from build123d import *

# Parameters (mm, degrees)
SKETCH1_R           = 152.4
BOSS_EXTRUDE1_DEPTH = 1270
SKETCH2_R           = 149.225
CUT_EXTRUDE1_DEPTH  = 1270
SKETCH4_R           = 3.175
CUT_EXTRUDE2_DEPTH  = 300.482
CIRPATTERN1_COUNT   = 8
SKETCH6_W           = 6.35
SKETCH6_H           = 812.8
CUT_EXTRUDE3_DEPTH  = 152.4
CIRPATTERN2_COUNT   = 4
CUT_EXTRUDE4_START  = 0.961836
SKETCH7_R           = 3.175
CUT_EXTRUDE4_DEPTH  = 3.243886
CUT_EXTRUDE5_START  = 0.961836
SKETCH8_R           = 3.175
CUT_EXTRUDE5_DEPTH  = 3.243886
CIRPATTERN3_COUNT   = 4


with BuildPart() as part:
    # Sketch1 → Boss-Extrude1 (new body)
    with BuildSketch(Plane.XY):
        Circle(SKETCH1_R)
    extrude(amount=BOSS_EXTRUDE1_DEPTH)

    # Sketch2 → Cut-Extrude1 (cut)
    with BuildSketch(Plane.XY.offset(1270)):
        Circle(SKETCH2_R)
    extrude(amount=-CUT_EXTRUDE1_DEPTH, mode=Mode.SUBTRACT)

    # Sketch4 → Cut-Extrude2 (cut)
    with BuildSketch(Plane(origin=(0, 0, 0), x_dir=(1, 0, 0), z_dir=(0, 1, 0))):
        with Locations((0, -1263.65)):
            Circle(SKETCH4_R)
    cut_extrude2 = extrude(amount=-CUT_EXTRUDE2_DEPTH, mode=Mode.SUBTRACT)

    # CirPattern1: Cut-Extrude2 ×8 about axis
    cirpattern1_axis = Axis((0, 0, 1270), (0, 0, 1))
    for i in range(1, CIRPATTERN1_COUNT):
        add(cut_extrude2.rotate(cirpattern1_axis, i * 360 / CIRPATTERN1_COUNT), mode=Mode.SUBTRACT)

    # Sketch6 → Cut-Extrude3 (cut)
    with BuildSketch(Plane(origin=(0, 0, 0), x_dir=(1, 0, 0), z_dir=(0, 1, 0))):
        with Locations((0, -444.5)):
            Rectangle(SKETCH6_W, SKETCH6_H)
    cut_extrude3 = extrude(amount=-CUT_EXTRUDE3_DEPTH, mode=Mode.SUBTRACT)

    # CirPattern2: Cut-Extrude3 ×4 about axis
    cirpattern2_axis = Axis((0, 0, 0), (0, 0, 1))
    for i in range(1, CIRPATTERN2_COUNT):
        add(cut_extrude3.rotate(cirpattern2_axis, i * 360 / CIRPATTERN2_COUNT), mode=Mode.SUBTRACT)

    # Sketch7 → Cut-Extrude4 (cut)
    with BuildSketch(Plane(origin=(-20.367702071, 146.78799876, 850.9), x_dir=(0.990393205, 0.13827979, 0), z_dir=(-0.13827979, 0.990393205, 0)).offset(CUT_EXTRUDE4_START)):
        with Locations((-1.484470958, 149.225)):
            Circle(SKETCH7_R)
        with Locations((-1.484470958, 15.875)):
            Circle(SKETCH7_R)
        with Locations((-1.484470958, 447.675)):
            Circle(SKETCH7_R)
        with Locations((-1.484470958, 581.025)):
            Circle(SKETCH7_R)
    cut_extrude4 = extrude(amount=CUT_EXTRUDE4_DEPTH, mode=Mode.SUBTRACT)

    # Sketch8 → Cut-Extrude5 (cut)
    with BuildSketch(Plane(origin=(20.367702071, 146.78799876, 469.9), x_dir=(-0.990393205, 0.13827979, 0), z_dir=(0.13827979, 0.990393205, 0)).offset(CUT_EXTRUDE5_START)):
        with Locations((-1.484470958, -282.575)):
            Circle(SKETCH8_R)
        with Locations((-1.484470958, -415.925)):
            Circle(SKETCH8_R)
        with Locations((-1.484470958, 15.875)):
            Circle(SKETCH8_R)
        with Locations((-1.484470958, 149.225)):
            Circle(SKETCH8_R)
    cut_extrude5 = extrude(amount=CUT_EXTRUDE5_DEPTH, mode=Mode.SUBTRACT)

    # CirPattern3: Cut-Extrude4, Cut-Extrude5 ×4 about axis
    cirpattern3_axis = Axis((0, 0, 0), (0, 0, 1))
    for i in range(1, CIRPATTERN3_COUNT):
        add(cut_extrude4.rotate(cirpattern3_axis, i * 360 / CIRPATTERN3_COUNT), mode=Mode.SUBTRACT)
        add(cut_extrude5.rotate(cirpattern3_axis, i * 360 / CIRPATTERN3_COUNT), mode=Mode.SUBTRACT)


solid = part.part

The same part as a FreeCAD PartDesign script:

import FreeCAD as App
import Part
import Sketcher
Q = App.Units.Quantity

doc = App.newDocument("Part")
body = doc.addObject("PartDesign::Body", "Body")

sketch1 = body.newObject("Sketcher::SketchObject", "Sketch")
sketch1.AttachmentSupport = (doc.getObject("XY_Plane"), [""])
sketch1.MapMode = "FlatFace"
sketch1.addGeometry(Part.Circle(App.Vector(0, 0, 0), App.Vector(0, 0, 1), 152), False)
sketch1.addConstraint(Sketcher.Constraint("Coincident", 0, 3, -1, 1))
sketch1.addConstraint(Sketcher.Constraint("Diameter", 0, Q("12 in")))
pad1 = body.newObject("PartDesign::Pad", "Pad")
pad1.Profile = sketch1
pad1.Length = Q("50 in")

sketch2 = body.newObject("Sketcher::SketchObject", "Sketch001")
sketch2.AttachmentSupport = (doc.getObject("XY_Plane"), [""])
sketch2.MapMode = "FlatFace"
sketch2.AttachmentOffset = App.Placement(App.Vector(0, 0, 50 * 25.4), App.Rotation())
sketch2.addGeometry(Part.Circle(App.Vector(0, 0, 0), App.Vector(0, 0, 1), 149), False)
sketch2.addConstraint(Sketcher.Constraint("Coincident", 0, 3, -1, 1))
sketch2.addConstraint(Sketcher.Constraint("Diameter", 0, Q("11.75 in")))
pocket1 = body.newObject("PartDesign::Pocket", "Pocket")
pocket1.Profile = sketch2
pocket1.Length = Q("50 in")

sketch3 = body.newObject("Sketcher::SketchObject", "Sketch002")
sketch3.AttachmentSupport = (doc.getObject("XZ_Plane"), [""])
sketch3.MapMode = "FlatFace"
sketch3.addGeometry(Part.Circle(App.Vector(0, 1263.7, 0), App.Vector(0, 0, 1), 3.2), False)
sketch3.addConstraint(Sketcher.Constraint("PointOnObject", 0, 3, -2))
sketch3.addConstraint(Sketcher.Constraint("Diameter", 0, Q("0.25 in")))
sketch3.addConstraint(Sketcher.Constraint("DistanceY", -1, 1, 0, 3, Q("49.75 in")))
pocket2 = body.newObject("PartDesign::Pocket", "Pocket001")
pocket2.Profile = sketch3
pocket2.Length = Q("11.83 in")
pocket2.Reversed = True
doc.recompute()

polarpattern = body.newObject("PartDesign::PolarPattern", "PolarPattern")
polarpattern.Originals = [pocket2]
polarpattern.Axis = (doc.getObject("Z_Axis"), [""])
polarpattern.Angle = 360
polarpattern.Occurrences = 8
body.Tip = polarpattern

sketch4 = body.newObject("Sketcher::SketchObject", "Sketch003")
sketch4.AttachmentSupport = (doc.getObject("XZ_Plane"), [""])
sketch4.MapMode = "FlatFace"
sketch4.addGeometry(Part.LineSegment(App.Vector(-3, 38, 0), App.Vector(-3, 851, 0)), False)
sketch4.addGeometry(Part.LineSegment(App.Vector(-3, 851, 0), App.Vector(3, 851, 0)), False)
sketch4.addGeometry(Part.LineSegment(App.Vector(3, 851, 0), App.Vector(3, 38, 0)), False)
sketch4.addGeometry(Part.LineSegment(App.Vector(3, 38, 0), App.Vector(-3, 38, 0)), False)
sketch4.addConstraint(Sketcher.Constraint("Coincident", 0, 2, 1, 1))
sketch4.addConstraint(Sketcher.Constraint("Coincident", 1, 2, 2, 1))
sketch4.addConstraint(Sketcher.Constraint("Coincident", 2, 2, 3, 1))
sketch4.addConstraint(Sketcher.Constraint("Coincident", 3, 2, 0, 1))
sketch4.addConstraint(Sketcher.Constraint("Vertical", 0))
sketch4.addConstraint(Sketcher.Constraint("Horizontal", 1))
sketch4.addConstraint(Sketcher.Constraint("Vertical", 2))
sketch4.addConstraint(Sketcher.Constraint("Horizontal", 3))
sketch4.addConstraint(Sketcher.Constraint("DistanceY", 0, 1, 0, 2, Q("32 in")))
sketch4.addConstraint(Sketcher.Constraint("DistanceX", 1, 1, 1, 2, Q("0.25 in")))
sketch4.addConstraint(Sketcher.Constraint("DistanceY", -1, 1, 0, 2, Q("33.5 in")))
sketch4.addConstraint(Sketcher.Constraint("DistanceX", 0, 2, -1, 1, Q("0.125 in")))
pocket3 = body.newObject("PartDesign::Pocket", "Pocket002")
pocket3.Profile = sketch4
pocket3.Length = Q("6 in")
pocket3.Reversed = True
doc.recompute()

polarpattern2 = body.newObject("PartDesign::PolarPattern", "PolarPattern001")
polarpattern2.Originals = [pocket3]
polarpattern2.Axis = (doc.getObject("Z_Axis"), [""])
polarpattern2.Angle = 360
polarpattern2.Occurrences = 4
body.Tip = polarpattern2

sketch5 = body.newObject("Sketcher::SketchObject", "Sketch004")
sketch5.Placement = App.Placement(App.Vector(-20.500705, 147.740595, 850.9), App.Rotation(App.Vector(0.990393205, 0.13827979, 0), App.Vector(0, 0, -1.000000001), App.Vector(-0.13827979, 0.990393205, 0), "ZXY"))
sketch5.addGeometry(Part.Circle(App.Vector(-1.5, 149.2, 0), App.Vector(0, 0, 1), 3.2), False)
sketch5.addGeometry(Part.Circle(App.Vector(-1.5, 15.9, 0), App.Vector(0, 0, 1), 3.2), False)
sketch5.addGeometry(Part.Circle(App.Vector(-1.5, 447.7, 0), App.Vector(0, 0, 1), 3.2), False)
sketch5.addGeometry(Part.Circle(App.Vector(-1.5, 581, 0), App.Vector(0, 0, 1), 3.2), False)
sketch5.addConstraint(Sketcher.Constraint("Equal", 0, 1))
sketch5.addConstraint(Sketcher.Constraint("Equal", 1, 2))
sketch5.addConstraint(Sketcher.Constraint("Equal", 2, 3))
sketch5.addConstraint(Sketcher.Constraint("Vertical", 0, 3, 1, 3))
sketch5.addConstraint(Sketcher.Constraint("Vertical", 1, 3, 2, 3))
sketch5.addConstraint(Sketcher.Constraint("Vertical", 2, 3, 3, 3))
sketch5.addConstraint(Sketcher.Constraint("Diameter", 0, Q("0.25 in")))
sketch5.addConstraint(Sketcher.Constraint("DistanceY", 1, 3, 2, 3, Q("17 in")))
sketch5.addConstraint(Sketcher.Constraint("DistanceY", 0, 3, 3, 3, Q("17 in")))
sketch5.addConstraint(Sketcher.Constraint("DistanceY", 1, 3, 0, 3, Q("5.25 in")))
sketch5.addConstraint(Sketcher.Constraint("DistanceY", -1, 1, 0, 3, Q("5.875 in")))
sketch5.addConstraint(Sketcher.Constraint("DistanceX", 0, 3, -1, 1, 1.484471))
pocket4 = body.newObject("PartDesign::Pocket", "Pocket003")
pocket4.Profile = sketch5
pocket4.Length = 3.243886
pocket4.Reversed = True

sketch6 = body.newObject("Sketcher::SketchObject", "Sketch005")
sketch6.Placement = App.Placement(App.Vector(20.500705, 147.740595, 469.9), App.Rotation(App.Vector(-0.990393205, 0.13827979, 0), App.Vector(0, 0, 1.000000001), App.Vector(0.13827979, 0.990393205, 0), "ZXY"))
sketch6.addGeometry(Part.Circle(App.Vector(-1.5, -282.6, 0), App.Vector(0, 0, 1), 3.2), False)
sketch6.addGeometry(Part.Circle(App.Vector(-1.5, -415.9, 0), App.Vector(0, 0, 1), 3.2), False)
sketch6.addGeometry(Part.Circle(App.Vector(-1.5, 15.9, 0), App.Vector(0, 0, 1), 3.2), False)
sketch6.addGeometry(Part.Circle(App.Vector(-1.5, 149.2, 0), App.Vector(0, 0, 1), 3.2), False)
sketch6.addConstraint(Sketcher.Constraint("Equal", 0, 1))
sketch6.addConstraint(Sketcher.Constraint("Equal", 1, 2))
sketch6.addConstraint(Sketcher.Constraint("Equal", 2, 3))
sketch6.addConstraint(Sketcher.Constraint("Vertical", 0, 3, 1, 3))
sketch6.addConstraint(Sketcher.Constraint("Vertical", 1, 3, 2, 3))
sketch6.addConstraint(Sketcher.Constraint("Vertical", 2, 3, 3, 3))
sketch6.addConstraint(Sketcher.Constraint("Diameter", 0, Q("0.25 in")))
sketch6.addConstraint(Sketcher.Constraint("DistanceY", 1, 3, 2, 3, Q("17 in")))
sketch6.addConstraint(Sketcher.Constraint("DistanceY", 0, 3, 3, 3, Q("17 in")))
sketch6.addConstraint(Sketcher.Constraint("DistanceY", 1, 3, 0, 3, Q("5.25 in")))
sketch6.addConstraint(Sketcher.Constraint("DistanceY", 0, 3, -1, 1, Q("11.125 in")))
sketch6.addConstraint(Sketcher.Constraint("DistanceX", 0, 3, -1, 1, 1.484471))
pocket5 = body.newObject("PartDesign::Pocket", "Pocket004")
pocket5.Profile = sketch6
pocket5.Length = 3.243886
pocket5.Reversed = True
doc.recompute()

polarpattern3 = body.newObject("PartDesign::PolarPattern", "PolarPattern002")
polarpattern3.Originals = [pocket4, pocket5]
polarpattern3.Axis = (doc.getObject("Z_Axis"), [""])
polarpattern3.Angle = 360
polarpattern3.Occurrences = 4
body.Tip = polarpattern3

doc.recompute()
